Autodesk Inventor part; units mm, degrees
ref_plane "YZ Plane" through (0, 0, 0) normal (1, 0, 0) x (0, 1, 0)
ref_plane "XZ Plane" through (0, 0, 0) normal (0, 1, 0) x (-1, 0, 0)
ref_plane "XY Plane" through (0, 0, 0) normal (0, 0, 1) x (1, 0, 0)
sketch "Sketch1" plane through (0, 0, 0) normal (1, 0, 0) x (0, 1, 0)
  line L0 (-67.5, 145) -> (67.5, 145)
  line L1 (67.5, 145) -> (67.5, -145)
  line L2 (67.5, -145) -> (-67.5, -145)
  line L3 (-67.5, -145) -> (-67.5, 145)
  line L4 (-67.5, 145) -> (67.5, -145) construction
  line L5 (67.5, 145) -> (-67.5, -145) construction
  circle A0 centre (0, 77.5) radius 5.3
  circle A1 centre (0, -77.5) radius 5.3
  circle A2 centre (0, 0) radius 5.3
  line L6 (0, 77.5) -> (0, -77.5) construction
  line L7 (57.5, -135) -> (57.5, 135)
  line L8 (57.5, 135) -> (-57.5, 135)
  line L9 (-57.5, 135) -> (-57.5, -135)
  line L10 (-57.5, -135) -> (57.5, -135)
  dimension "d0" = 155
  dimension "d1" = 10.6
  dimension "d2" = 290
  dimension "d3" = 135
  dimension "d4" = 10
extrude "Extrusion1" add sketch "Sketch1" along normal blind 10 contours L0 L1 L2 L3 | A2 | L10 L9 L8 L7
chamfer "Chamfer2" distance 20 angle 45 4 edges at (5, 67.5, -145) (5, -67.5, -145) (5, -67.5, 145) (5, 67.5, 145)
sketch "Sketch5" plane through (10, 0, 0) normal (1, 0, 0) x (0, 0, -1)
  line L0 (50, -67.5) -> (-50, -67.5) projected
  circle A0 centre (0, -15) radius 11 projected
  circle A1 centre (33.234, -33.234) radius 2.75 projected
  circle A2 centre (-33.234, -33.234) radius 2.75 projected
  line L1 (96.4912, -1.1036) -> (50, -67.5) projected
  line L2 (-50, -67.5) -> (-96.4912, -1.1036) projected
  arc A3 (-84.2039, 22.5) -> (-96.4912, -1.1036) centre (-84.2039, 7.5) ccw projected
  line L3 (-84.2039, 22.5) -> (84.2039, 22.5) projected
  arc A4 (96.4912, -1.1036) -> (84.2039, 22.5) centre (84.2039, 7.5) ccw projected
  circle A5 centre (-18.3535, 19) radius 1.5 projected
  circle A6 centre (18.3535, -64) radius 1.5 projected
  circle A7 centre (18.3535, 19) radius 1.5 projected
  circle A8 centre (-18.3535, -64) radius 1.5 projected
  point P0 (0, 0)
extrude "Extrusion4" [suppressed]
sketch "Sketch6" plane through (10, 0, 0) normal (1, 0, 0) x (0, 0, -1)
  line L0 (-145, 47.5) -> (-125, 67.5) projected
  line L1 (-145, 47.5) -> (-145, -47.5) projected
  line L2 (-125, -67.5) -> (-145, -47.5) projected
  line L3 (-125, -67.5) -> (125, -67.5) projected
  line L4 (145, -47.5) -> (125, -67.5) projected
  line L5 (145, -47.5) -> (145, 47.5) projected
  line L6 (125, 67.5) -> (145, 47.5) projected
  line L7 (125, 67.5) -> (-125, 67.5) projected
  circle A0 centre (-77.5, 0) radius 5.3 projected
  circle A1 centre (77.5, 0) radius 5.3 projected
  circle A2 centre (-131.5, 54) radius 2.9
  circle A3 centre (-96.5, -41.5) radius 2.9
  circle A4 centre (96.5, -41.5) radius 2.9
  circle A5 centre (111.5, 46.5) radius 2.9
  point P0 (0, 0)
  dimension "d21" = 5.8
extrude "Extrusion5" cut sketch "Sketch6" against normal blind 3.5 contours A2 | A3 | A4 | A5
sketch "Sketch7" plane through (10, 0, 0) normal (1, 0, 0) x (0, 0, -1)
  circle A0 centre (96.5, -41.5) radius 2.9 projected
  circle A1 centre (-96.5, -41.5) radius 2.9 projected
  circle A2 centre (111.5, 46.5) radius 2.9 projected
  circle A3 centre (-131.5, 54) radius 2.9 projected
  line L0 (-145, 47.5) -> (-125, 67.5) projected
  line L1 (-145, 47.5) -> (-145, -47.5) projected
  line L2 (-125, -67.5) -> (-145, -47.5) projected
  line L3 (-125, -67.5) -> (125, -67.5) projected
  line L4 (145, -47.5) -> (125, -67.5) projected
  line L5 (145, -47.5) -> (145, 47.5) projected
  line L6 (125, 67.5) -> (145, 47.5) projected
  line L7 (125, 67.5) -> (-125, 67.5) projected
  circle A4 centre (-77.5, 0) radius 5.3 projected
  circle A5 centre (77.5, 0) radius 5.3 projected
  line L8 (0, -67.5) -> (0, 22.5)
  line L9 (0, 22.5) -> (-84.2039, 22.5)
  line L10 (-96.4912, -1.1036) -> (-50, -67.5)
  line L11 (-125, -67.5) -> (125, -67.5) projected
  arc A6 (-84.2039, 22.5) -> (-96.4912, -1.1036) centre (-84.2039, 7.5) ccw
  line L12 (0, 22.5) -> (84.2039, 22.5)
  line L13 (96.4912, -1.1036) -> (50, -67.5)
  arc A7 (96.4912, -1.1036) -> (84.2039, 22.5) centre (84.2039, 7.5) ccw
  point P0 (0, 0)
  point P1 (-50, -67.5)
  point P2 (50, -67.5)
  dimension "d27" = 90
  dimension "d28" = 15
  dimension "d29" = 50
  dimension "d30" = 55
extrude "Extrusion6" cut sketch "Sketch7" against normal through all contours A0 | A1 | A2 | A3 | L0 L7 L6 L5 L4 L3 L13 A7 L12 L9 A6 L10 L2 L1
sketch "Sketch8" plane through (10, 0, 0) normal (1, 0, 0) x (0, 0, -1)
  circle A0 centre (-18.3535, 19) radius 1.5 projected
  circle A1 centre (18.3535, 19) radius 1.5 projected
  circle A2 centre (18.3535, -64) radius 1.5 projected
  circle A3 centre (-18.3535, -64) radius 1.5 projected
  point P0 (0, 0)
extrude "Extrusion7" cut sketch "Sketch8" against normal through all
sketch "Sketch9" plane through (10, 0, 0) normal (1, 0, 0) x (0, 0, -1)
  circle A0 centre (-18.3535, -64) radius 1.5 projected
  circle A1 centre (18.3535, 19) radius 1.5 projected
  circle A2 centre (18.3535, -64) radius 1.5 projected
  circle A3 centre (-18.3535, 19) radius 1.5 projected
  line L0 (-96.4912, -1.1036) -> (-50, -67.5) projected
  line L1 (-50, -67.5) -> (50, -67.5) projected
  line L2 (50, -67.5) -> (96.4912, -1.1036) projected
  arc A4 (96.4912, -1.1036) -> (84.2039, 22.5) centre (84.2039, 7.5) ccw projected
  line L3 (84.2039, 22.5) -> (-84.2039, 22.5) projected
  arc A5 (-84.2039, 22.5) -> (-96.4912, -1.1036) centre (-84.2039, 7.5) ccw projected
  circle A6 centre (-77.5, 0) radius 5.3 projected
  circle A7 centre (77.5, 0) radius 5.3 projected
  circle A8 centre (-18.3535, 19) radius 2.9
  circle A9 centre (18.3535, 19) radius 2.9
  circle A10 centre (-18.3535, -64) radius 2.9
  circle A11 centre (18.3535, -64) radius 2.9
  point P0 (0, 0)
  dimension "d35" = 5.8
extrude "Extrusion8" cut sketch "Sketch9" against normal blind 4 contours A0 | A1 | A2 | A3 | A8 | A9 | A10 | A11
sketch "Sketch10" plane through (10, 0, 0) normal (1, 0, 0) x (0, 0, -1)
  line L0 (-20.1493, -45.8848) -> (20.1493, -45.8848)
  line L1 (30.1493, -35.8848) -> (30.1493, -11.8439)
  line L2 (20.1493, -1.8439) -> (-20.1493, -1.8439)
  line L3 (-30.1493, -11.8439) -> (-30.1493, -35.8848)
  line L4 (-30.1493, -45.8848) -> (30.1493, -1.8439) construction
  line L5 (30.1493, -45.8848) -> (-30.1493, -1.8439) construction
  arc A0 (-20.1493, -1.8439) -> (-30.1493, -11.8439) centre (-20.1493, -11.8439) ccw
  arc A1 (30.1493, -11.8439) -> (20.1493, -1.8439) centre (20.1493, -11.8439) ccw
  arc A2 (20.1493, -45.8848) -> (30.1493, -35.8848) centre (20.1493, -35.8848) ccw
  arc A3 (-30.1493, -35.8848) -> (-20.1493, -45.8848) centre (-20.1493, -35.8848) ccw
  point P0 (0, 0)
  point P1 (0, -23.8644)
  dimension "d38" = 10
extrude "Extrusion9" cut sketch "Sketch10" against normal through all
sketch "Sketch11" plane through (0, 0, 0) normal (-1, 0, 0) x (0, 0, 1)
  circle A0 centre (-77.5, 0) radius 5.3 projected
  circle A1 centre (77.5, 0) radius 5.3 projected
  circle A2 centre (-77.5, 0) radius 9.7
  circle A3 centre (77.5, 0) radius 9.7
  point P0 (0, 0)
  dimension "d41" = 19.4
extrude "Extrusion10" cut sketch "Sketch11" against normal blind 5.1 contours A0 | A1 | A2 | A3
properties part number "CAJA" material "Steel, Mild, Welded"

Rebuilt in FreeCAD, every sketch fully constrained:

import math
import FreeCAD as App
import Part
import Sketcher

V = App.Vector
Q = App.Units.Quantity


def edges_at(feature, points):
    """Names of the edges that pass closest to the given points."""
    edges = feature.Shape.Edges
    near = lambda p: min(range(len(edges)), key=lambda i: edges[i].distToShape(Part.Vertex(*p))[0])
    return sorted({f"Edge{near(p) + 1}" for p in points})

doc = App.newDocument("Part")
body = doc.addObject("PartDesign::Body", "Body")

# Sketch on YZ plane
sketch1 = doc.addObject("Sketcher::SketchObject", "Sketch")
body.addObject(sketch1)
sketch1.AttachmentSupport = (doc.YZ_Plane, [""])
sketch1.MapMode = "FlatFace"
sketch1.addGeometry(Part.LineSegment(V(67.5, 145, 0), V(-67.5, 145, 0)), False)
sketch1.addGeometry(Part.LineSegment(V(-67.5, 145, 0), V(-67.5, -145, 0)), False)
sketch1.addGeometry(Part.LineSegment(V(-67.5, -145, 0), V(67.5, -145, 0)), False)
sketch1.addGeometry(Part.LineSegment(V(67.5, -145, 0), V(67.5, 145, 0)), False)
sketch1.addGeometry(Part.Circle(V(0, 77.5, 0), V(0, 0, 1), 5.3), False)
sketch1.addGeometry(Part.Circle(V(0, -77.5, 0), V(0, 0, 1), 5.3), False)
sketch1.addConstraint(Sketcher.Constraint("Coincident", 0, 2, 1, 1))
sketch1.addConstraint(Sketcher.Constraint("Coincident", 1, 2, 2, 1))
sketch1.addConstraint(Sketcher.Constraint("Coincident", 2, 2, 3, 1))
sketch1.addConstraint(Sketcher.Constraint("Coincident", 3, 2, 0, 1))
sketch1.addConstraint(Sketcher.Constraint("Horizontal", 0))
sketch1.addConstraint(Sketcher.Constraint("Vertical", 1))
sketch1.addConstraint(Sketcher.Constraint("Horizontal", 2))
sketch1.addConstraint(Sketcher.Constraint("Vertical", 3))
sketch1.addConstraint(Sketcher.Constraint("Equal", 4, 5))
sketch1.addConstraint(Sketcher.Constraint("Symmetric", 4, 3, 5, 3, -1, 1))
sketch1.addConstraint(Sketcher.Constraint("Symmetric", 0, 2, 2, 2, -1, 1))
sketch1.addConstraint(Sketcher.Constraint("PointOnObject", 4, 3, -2))
sketch1.addConstraint(Sketcher.Constraint("Diameter", 4, 10.6))
sketch1.addConstraint(Sketcher.Constraint("DistanceX", 0, 2, 0, 1, 135.0))
sketch1.addConstraint(Sketcher.Constraint("DistanceY", 1, 2, 1, 1, 290.0))
sketch1.addConstraint(Sketcher.Constraint("DistanceY", 5, 3, 4, 3, 155.0))
pad1 = doc.addObject("PartDesign::Pad", "Pad")
body.addObject(pad1)
pad1.Profile = sketch1
pad1.Length = 10
doc.recompute()

chamfer = doc.addObject("PartDesign::Chamfer", "Chamfer")
body.addObject(chamfer)
chamfer.Base = (pad1, edges_at(pad1, [
    (5, 67.5, -145),
    (5, -67.5, -145),
    (5, -67.5, 145),
    (5, 67.5, 145),
]))
chamfer.Size = 20

# Sketch on YZ plane
sketch2 = doc.addObject("Sketcher::SketchObject", "Sketch001")
body.addObject(sketch2)
sketch2.AttachmentSupport = (doc.YZ_Plane, [""])
sketch2.MapMode = "FlatFace"
sketch2.AttachmentOffset = App.Placement(V(0, 0, 10), App.Rotation())
sketch2.addGeometry(Part.Circle(V(54, 131.5, 0), V(0, 0, 1), 2.9), False)
sketch2.addGeometry(Part.Circle(V(-41.5, 96.5, 0), V(0, 0, 1), 2.9), False)
sketch2.addGeometry(Part.Circle(V(-41.5, -96.5, 0), V(0, 0, 1), 2.9), False)
sketch2.addGeometry(Part.Circle(V(46.5, -111.5, 0), V(0, 0, 1), 2.9), False)
sketch2.addConstraint(Sketcher.Constraint("Equal", 0, 1))
sketch2.addConstraint(Sketcher.Constraint("Equal", 1, 2))
sketch2.addConstraint(Sketcher.Constraint("Equal", 2, 3))
sketch2.addConstraint(Sketcher.Constraint("Symmetric", 1, 3, 2, 3, -1))
sketch2.addConstraint(Sketcher.Constraint("Diameter", 0, 5.8))
sketch2.addConstraint(Sketcher.Constraint("DistanceX", -1, 1, 0, 3, 54.0))
sketch2.addConstraint(Sketcher.Constraint("DistanceY", 1, 3, 0, 3, 35.0))
sketch2.addConstraint(Sketcher.Constraint("DistanceY", 2, 3, 1, 3, 193.0))
sketch2.addConstraint(Sketcher.Constraint("DistanceX", 2, 3, 3, 3, 88.0))
sketch2.addConstraint(Sketcher.Constraint("DistanceY", 3, 3, 2, 3, 15.0))
sketch2.addConstraint(Sketcher.Constraint("DistanceX", 1, 3, -1, 1, 41.5))
pocket1 = doc.addObject("PartDesign::Pocket", "Pocket")
body.addObject(pocket1)
pocket1.Profile = sketch2
pocket1.Length = 3.5

# Sketch on YZ plane
sketch3 = doc.addObject("Sketcher::SketchObject", "Sketch002")
body.addObject(sketch3)
sketch3.AttachmentSupport = (doc.YZ_Plane, [""])
sketch3.MapMode = "FlatFace"
sketch3.AttachmentOffset = App.Placement(V(0, 0, 10), App.Rotation())
sketch3.addGeometry(Part.LineSegment(V(67.5, 125, 0), V(47.5, 145, 0)), False)
sketch3.addGeometry(Part.LineSegment(V(47.5, 145, 0), V(-47.5, 145, 0)), False)
sketch3.addGeometry(Part.LineSegment(V(-47.5, 145, 0), V(-67.5, 125, 0)), False)
sketch3.addGeometry(Part.LineSegment(V(-67.5, 125, 0), V(-67.5, 50, 0)), False)
sketch3.addGeometry(Part.LineSegment(V(-67.5, 50, 0), V(-1.1036, 96.4912, 0)), False)
sketch3.addGeometry(Part.ArcOfCircle(Part.Circle(V(7.5, 84.2039, 0), V(0, 0, 1), 15), math.radians(0), math.radians(124.999812)), False)
sketch3.addGeometry(Part.LineSegment(V(22.5, 84.2039, 0), V(22.5, -84.2039, 0)), False)
sketch3.addGeometry(Part.ArcOfCircle(Part.Circle(V(7.5, -84.2039, 0), V(0, 0, 1), 14.999989), math.radians(-124.999812), math.radians(0)), False)
sketch3.addGeometry(Part.LineSegment(V(-1.1036, -96.4912, 0), V(-67.5, -50, 0)), False)
sketch3.addGeometry(Part.LineSegment(V(-67.5, -50, 0), V(-67.5, -125, 0)), False)
sketch3.addGeometry(Part.LineSegment(V(-67.5, -125, 0), V(-47.5, -145, 0)), False)
sketch3.addGeometry(Part.LineSegment(V(-47.5, -145, 0), V(47.5, -145, 0)), False)
sketch3.addGeometry(Part.LineSegment(V(47.5, -145, 0), V(67.5, -125, 0)), False)
sketch3.addGeometry(Part.LineSegment(V(67.5, -125, 0), V(67.5, 125, 0)), False)
sketch3.addConstraint(Sketcher.Constraint("Coincident", 0, 2, 1, 1))
sketch3.addConstraint(Sketcher.Constraint("Coincident", 1, 2, 2, 1))
sketch3.addConstraint(Sketcher.Constraint("Coincident", 2, 2, 3, 1))
sketch3.addConstraint(Sketcher.Constraint("Coincident", 3, 2, 4, 1))
sketch3.addConstraint(Sketcher.Constraint("Tangent", 4, 2, 5, 2))
sketch3.addConstraint(Sketcher.Constraint("Tangent", 5, 1, 6, 1))
sketch3.addConstraint(Sketcher.Constraint("Tangent", 6, 2, 7, 2))
sketch3.addConstraint(Sketcher.Constraint("Tangent", 7, 1, 8, 1))
sketch3.addConstraint(Sketcher.Constraint("Coincident", 8, 2, 9, 1))
sketch3.addConstraint(Sketcher.Constraint("Coincident", 9, 2, 10, 1))
sketch3.addConstraint(Sketcher.Constraint("Coincident", 10, 2, 11, 1))
sketch3.addConstraint(Sketcher.Constraint("Coincident", 11, 2, 12, 1))
sketch3.addConstraint(Sketcher.Constraint("Coincident", 12, 2, 13, 1))
sketch3.addConstraint(Sketcher.Constraint("Coincident", 13, 2, 0, 1))
sketch3.addConstraint(Sketcher.Constraint("Horizontal", 1))
sketch3.addConstraint(Sketcher.Constraint("Vertical", 3))
sketch3.addConstraint(Sketcher.Constraint("Vertical", 6))
sketch3.addConstraint(Sketcher.Constraint("Vertical", 9))
sketch3.addConstraint(Sketcher.Constraint("Horizontal", 11))
sketch3.addConstraint(Sketcher.Constraint("Vertical", 13))
sketch3.addConstraint(Sketcher.Constraint("Equal", 5, 7))
sketch3.addConstraint(Sketcher.Constraint("Symmetric", 0, 2, 10, 2, -1, 1))
sketch3.addConstraint(Sketcher.Constraint("Symmetric", 2, 2, 12, 2, -1, 1))
sketch3.addConstraint(Sketcher.Constraint("Symmetric", 9, 2, 13, 2, -1, 1))
sketch3.addConstraint(Sketcher.Constraint("Symmetric", 4, 2, 7, 1, -1))
sketch3.addConstraint(Sketcher.Constraint("Perpendicular", 0, 2))
sketch3.addConstraint(Sketcher.Constraint("Perpendicular", 10, 12))
sketch3.addConstraint(Sketcher.Constraint("Horizontal", 9, 2, 12, 2))
sketch3.addConstraint(Sketcher.Constraint("Vertical", 1, 2, 10, 2))
sketch3.addConstraint(Sketcher.Constraint("Radius", 5, 15.0))
sketch3.addConstraint(Sketcher.Constraint("DistanceY", -1, 1, 3, 2, 50.0))
sketch3.addConstraint(Sketcher.Constraint("DistanceX", 1, 2, 5, 3, 55.0))
sketch3.addConstraint(Sketcher.Constraint("DistanceX", 3, 2, 5, 1, 90.0))
sketch3.addConstraint(Sketcher.Constraint("DistanceX", 1, 2, 1, 1, 95.0))
sketch3.addConstraint(Sketcher.Constraint("DistanceY", 3, 2, 3, 1, 75.0))
sketch3.addConstraint(Sketcher.Constraint("Angle", 4, Q("35 deg")))
pocket2 = doc.addObject("PartDesign::Pocket", "Pocket001")
body.addObject(pocket2)
pocket2.Profile = sketch3
pocket2.Type = "ThroughAll"

# Sketch on YZ plane
sketch4 = doc.addObject("Sketcher::SketchObject", "Sketch003")
body.addObject(sketch4)
sketch4.AttachmentSupport = (doc.YZ_Plane, [""])
sketch4.MapMode = "FlatFace"
sketch4.AttachmentOffset = App.Placement(V(0, 0, 10), App.Rotation())
sketch4.addGeometry(Part.Circle(V(19, 18.3535, 0), V(0, 0, 1), 1.5), False)
sketch4.addGeometry(Part.Circle(V(19, -18.3535, 0), V(0, 0, 1), 1.5), False)
sketch4.addGeometry(Part.Circle(V(-64, -18.3535, 0), V(0, 0, 1), 1.5), False)
sketch4.addGeometry(Part.Circle(V(-64, 18.3535, 0), V(0, 0, 1), 1.5), False)
sketch4.addConstraint(Sketcher.Constraint("Equal", 0, 1))
sketch4.addConstraint(Sketcher.Constraint("Equal", 1, 2))
sketch4.addConstraint(Sketcher.Constraint("Equal", 2, 3))
sketch4.addConstraint(Sketcher.Constraint("Symmetric", 0, 3, 1, 3, -1))
sketch4.addConstraint(Sketcher.Constraint("Symmetric", 2, 3, 3, 3, -1))
sketch4.addConstraint(Sketcher.Constraint("Horizontal", 1, 3, 2, 3))
sketch4.addConstraint(Sketcher.Constraint("Diameter", 0, 3.0))
sketch4.addConstraint(Sketcher.Constraint("DistanceX", -1, 1, 0, 3, 19.0))
sketch4.addConstraint(Sketcher.Constraint("DistanceX", 2, 3, -1, 1, 64.0))
sketch4.addConstraint(Sketcher.Constraint("DistanceY", 1, 3, 0, 3, 36.707))
pocket3 = doc.addObject("PartDesign::Pocket", "Pocket002")
body.addObject(pocket3)
pocket3.Profile = sketch4
pocket3.Type = "ThroughAll"

# Sketch on YZ plane
sketch5 = doc.addObject("Sketcher::SketchObject", "Sketch004")
body.addObject(sketch5)
sketch5.AttachmentSupport = (doc.YZ_Plane, [""])
sketch5.MapMode = "FlatFace"
sketch5.AttachmentOffset = App.Placement(V(0, 0, 10), App.Rotation())
sketch5.addGeometry(Part.Circle(V(-64, 18.3535, 0), V(0, 0, 1), 2.9), False)
sketch5.addGeometry(Part.Circle(V(19, -18.3535, 0), V(0, 0, 1), 2.9), False)
sketch5.addGeometry(Part.Circle(V(-64, -18.3535, 0), V(0, 0, 1), 2.9), False)
sketch5.addGeometry(Part.Circle(V(19, 18.3535, 0), V(0, 0, 1), 2.9), False)
sketch5.addConstraint(Sketcher.Constraint("Equal", 0, 1))
sketch5.addConstraint(Sketcher.Constraint("Equal", 1, 2))
sketch5.addConstraint(Sketcher.Constraint("Equal", 2, 3))
sketch5.addConstraint(Sketcher.Constraint("Symmetric", 0, 3, 2, 3, -1))
sketch5.addConstraint(Sketcher.Constraint("Symmetric", 1, 3, 3, 3, -1))
sketch5.addConstraint(Sketcher.Constraint("Horizontal", 1, 3, 2, 3))
sketch5.addConstraint(Sketcher.Constraint("Diameter", 0, 5.8))
sketch5.addConstraint(Sketcher.Constraint("DistanceX", 0, 3, -1, 1, 64.0))
sketch5.addConstraint(Sketcher.Constraint("DistanceX", -1, 1, 1, 3, 19.0))
sketch5.addConstraint(Sketcher.Constraint("DistanceY", 1, 3, 0, 3, 36.707))
pocket4 = doc.addObject("PartDesign::Pocket", "Pocket003")
body.addObject(pocket4)
pocket4.Profile = sketch5
pocket4.Length = 4

# Sketch on YZ plane
sketch6 = doc.addObject("Sketcher::SketchObject", "Sketch005")
body.addObject(sketch6)
sketch6.AttachmentSupport = (doc.YZ_Plane, [""])
sketch6.MapMode = "FlatFace"
sketch6.AttachmentOffset = App.Placement(V(0, 0, 10), App.Rotation())
sketch6.addGeometry(Part.ArcOfCircle(Part.Circle(V(-35.8848, 20.1493, 0), V(0, 0, 1), 10), math.radians(90), math.radians(180)), False)
sketch6.addGeometry(Part.LineSegment(V(-45.8848, 20.1493, 0), V(-45.8848, -20.1493, 0)), False)
sketch6.addGeometry(Part.ArcOfCircle(Part.Circle(V(-35.8848, -20.1493, 0), V(0, 0, 1), 10), math.radians(180), math.radians(270)), False)
sketch6.addGeometry(Part.LineSegment(V(-35.8848, -30.1493, 0), V(-11.8439, -30.1493, 0)), False)
sketch6.addGeometry(Part.ArcOfCircle(Part.Circle(V(-11.8439, -20.1493, 0), V(0, 0, 1), 10), math.radians(-90), math.radians(0)), False)
sketch6.addGeometry(Part.LineSegment(V(-1.8439, -20.1493, 0), V(-1.8439, 20.1493, 0)), False)
sketch6.addGeometry(Part.ArcOfCircle(Part.Circle(V(-11.8439, 20.1493, 0), V(0, 0, 1), 10), math.radians(0), math.radians(90)), False)
sketch6.addGeometry(Part.LineSegment(V(-11.8439, 30.1493, 0), V(-35.8848, 30.1493, 0)), False)
sketch6.addConstraint(Sketcher.Constraint("Tangent", 0, 2, 1, 1))
sketch6.addConstraint(Sketcher.Constraint("Tangent", 1, 2, 2, 1))
sketch6.addConstraint(Sketcher.Constraint("Tangent", 2, 2, 3, 1))
sketch6.addConstraint(Sketcher.Constraint("Tangent", 3, 2, 4, 1))
sketch6.addConstraint(Sketcher.Constraint("Tangent", 4, 2, 5, 1))
sketch6.addConstraint(Sketcher.Constraint("Tangent", 5, 2, 6, 1))
sketch6.addConstraint(Sketcher.Constraint("Tangent", 6, 2, 7, 1))
sketch6.addConstraint(Sketcher.Constraint("Tangent", 7, 2, 0, 1))
sketch6.addConstraint(Sketcher.Constraint("Vertical", 1))
sketch6.addConstraint(Sketcher.Constraint("Horizontal", 3))
sketch6.addConstraint(Sketcher.Constraint("Vertical", 5))
sketch6.addConstraint(Sketcher.Constraint("Horizontal", 7))
sketch6.addConstraint(Sketcher.Constraint("Equal", 0, 2))
sketch6.addConstraint(Sketcher.Constraint("Equal", 2, 4))
sketch6.addConstraint(Sketcher.Constraint("Equal", 4, 6))
sketch6.addConstraint(Sketcher.Constraint("Radius", 0, 10.0))
sketch6.addConstraint(Sketcher.Constraint("DistanceX", 3, 1, 3, 2, 24.041))
sketch6.addConstraint(Sketcher.Constraint("DistanceY", 1, 2, 1, 1, 40.2986))
sketch6.addConstraint(Sketcher.Constraint("DistanceX", 4, 3, -1, 1, 11.844))
sketch6.addConstraint(Sketcher.Constraint("DistanceY", -1, 1, 0, 3, 20.1493))
pocket5 = doc.addObject("PartDesign::Pocket", "Pocket004")
body.addObject(pocket5)
pocket5.Profile = sketch6
pocket5.Type = "ThroughAll"

# Sketch on YZ plane
sketch7 = doc.addObject("Sketcher::SketchObject", "Sketch006")
body.addObject(sketch7)
sketch7.AttachmentSupport = (doc.YZ_Plane, [""])
sketch7.MapMode = "FlatFace"
sketch7.addGeometry(Part.Circle(V(0, -77.5, 0), V(0, 0, 1), 9.7), False)
sketch7.addGeometry(Part.Circle(V(0, 77.5, 0), V(0, 0, 1), 9.7), False)
sketch7.addConstraint(Sketcher.Constraint("Equal", 0, 1))
sketch7.addConstraint(Sketcher.Constraint("Symmetric", 0, 3, 1, 3, -1, 1))
sketch7.addConstraint(Sketcher.Constraint("PointOnObject", 0, 3, -2))
sketch7.addConstraint(Sketcher.Constraint("Diameter", 0, 19.4))
sketch7.addConstraint(Sketcher.Constraint("DistanceY", 0, 3, 1, 3, 155.0))
pocket6 = doc.addObject("PartDesign::Pocket", "Pocket005")
body.addObject(pocket6)
pocket6.Profile = sketch7
pocket6.Length = 5.1
pocket6.Reversed = True

doc.recompute()
